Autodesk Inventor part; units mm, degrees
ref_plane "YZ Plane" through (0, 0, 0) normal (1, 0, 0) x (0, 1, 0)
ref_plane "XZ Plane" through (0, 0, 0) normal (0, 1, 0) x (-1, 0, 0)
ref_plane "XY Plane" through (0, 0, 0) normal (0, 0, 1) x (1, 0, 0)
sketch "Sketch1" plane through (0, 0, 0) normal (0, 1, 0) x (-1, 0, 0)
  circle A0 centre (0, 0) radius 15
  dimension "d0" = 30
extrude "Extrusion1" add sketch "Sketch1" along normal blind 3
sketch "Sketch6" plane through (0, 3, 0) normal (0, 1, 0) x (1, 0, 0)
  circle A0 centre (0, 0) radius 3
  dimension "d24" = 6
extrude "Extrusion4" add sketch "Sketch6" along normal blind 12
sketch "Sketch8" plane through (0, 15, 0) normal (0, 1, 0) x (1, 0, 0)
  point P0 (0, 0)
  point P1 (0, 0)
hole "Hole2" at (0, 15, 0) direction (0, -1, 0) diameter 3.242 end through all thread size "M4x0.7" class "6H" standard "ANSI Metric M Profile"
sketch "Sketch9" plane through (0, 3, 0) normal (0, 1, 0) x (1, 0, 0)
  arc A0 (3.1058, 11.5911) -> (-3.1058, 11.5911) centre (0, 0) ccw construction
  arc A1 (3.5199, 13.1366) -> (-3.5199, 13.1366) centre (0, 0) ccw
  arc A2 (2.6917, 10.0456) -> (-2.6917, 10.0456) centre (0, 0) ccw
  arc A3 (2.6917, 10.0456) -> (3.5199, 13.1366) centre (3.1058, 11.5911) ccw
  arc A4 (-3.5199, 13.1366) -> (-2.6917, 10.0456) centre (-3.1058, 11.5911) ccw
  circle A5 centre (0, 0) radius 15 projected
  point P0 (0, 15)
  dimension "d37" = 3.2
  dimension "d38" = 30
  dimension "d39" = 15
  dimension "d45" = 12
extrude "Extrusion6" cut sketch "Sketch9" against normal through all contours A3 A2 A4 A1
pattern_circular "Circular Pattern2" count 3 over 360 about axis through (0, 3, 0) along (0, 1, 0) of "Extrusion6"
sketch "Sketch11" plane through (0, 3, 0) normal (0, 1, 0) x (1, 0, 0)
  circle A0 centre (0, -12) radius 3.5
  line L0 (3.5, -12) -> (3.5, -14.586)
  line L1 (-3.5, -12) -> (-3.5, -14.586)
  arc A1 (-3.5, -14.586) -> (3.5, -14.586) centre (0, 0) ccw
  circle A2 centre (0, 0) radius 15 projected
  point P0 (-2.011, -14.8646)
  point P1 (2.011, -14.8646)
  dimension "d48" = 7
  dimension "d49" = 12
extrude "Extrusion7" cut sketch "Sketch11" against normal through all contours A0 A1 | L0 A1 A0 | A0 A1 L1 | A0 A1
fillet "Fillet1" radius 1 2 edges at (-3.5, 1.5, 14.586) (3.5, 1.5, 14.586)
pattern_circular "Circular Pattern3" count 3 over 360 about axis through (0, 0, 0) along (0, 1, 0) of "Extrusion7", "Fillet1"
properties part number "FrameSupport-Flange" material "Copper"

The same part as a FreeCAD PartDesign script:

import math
import FreeCAD as App
import Part
import Sketcher
from FreeCAD import Vector
Q = App.Units.Quantity


def edges_at(feature, points):
    """Names of the edges that pass closest to the given points."""
    edges = feature.Shape.Edges
    near = lambda p: min(range(len(edges)), key=lambda i: edges[i].distToShape(Part.Vertex(*p))[0])
    return sorted({f"Edge{near(p) + 1}" for p in points})

doc = App.newDocument("Part")
body = doc.addObject("PartDesign::Body", "Body")

# Sketch on XZ plane
sketch1 = body.newObject("Sketcher::SketchObject", "Sketch")
sketch1.AttachmentSupport = (doc.getObject("XZ_Plane"), [""])
sketch1.MapMode = "FlatFace"
sketch1.addGeometry(Part.Circle(Vector(0, 0, 0), Vector(0, 0, 1), 15), False)
sketch1.addConstraint(Sketcher.Constraint("Coincident", 0, 3, -1, 1))
sketch1.addConstraint(Sketcher.Constraint("Diameter", 0, Q("30 mm")))
pad1 = body.newObject("PartDesign::Pad", "Pad")
pad1.Profile = sketch1
pad1.Length = 3
pad1.Reversed = True

# Sketch on XZ plane
sketch2 = body.newObject("Sketcher::SketchObject", "Sketch001")
sketch2.AttachmentSupport = (doc.getObject("XZ_Plane"), [""])
sketch2.MapMode = "FlatFace"
sketch2.AttachmentOffset = App.Placement(Vector(0, 0, -3), App.Rotation())
sketch2.addGeometry(Part.Circle(Vector(0, 0, 0), Vector(0, 0, 1), 3), False)
sketch2.addConstraint(Sketcher.Constraint("Coincident", 0, 3, -1, 1))
sketch2.addConstraint(Sketcher.Constraint("Diameter", 0, Q("6 mm")))
pad2 = body.newObject("PartDesign::Pad", "Pad001")
pad2.Profile = sketch2
pad2.Length = 12
pad2.Reversed = True

# Sketch on XZ plane
sketch3 = body.newObject("Sketcher::SketchObject", "Sketch002")
sketch3.AttachmentSupport = (doc.getObject("XZ_Plane"), [""])
sketch3.MapMode = "FlatFace"
sketch3.AttachmentOffset = App.Placement(Vector(0, 0, -15), App.Rotation())
sketch3.addGeometry(Part.Circle(Vector(0, 0, 0), Vector(0, 0, 1), 1.6), False)
sketch3.addConstraint(Sketcher.Constraint("Coincident", 0, 3, -1, 1))
sketch3.addConstraint(Sketcher.Constraint("Diameter", 0, Q("3.242 mm")))
doc.recompute()
hole = body.newObject("PartDesign::Hole", "Hole")
hole.Profile = sketch3
hole.ThreadType = "None"
hole.Diameter = 3.242
hole.DepthType = "ThroughAll"
hole.Reversed = True

# Sketch on XZ plane
sketch4 = body.newObject("Sketcher::SketchObject", "Sketch003")
sketch4.AttachmentSupport = (doc.getObject("XZ_Plane"), [""])
sketch4.MapMode = "FlatFace"
sketch4.AttachmentOffset = App.Placement(Vector(0, 0, -3), App.Rotation())
sketch4.addGeometry(Part.ArcOfCircle(Part.Circle(Vector(3.1, -11.6, 0), Vector(0, 0, 1), 1.6), math.radians(-75), math.radians(105)), False)
sketch4.addGeometry(Part.ArcOfCircle(Part.Circle(Vector(0, 0, 0), Vector(0, 0, 1), 13.6), math.radians(-105), math.radians(-75)), False)
sketch4.addGeometry(Part.ArcOfCircle(Part.Circle(Vector(-3.1, -11.6, 0), Vector(0, 0, 1), 1.6), math.radians(75), math.radians(255)), False)
sketch4.addGeometry(Part.ArcOfCircle(Part.Circle(Vector(0, 0, 0), Vector(0, 0, 1), 10.4), math.radians(-105), math.radians(-75)), False)
sketch4.addConstraint(Sketcher.Constraint("Tangent", 0, 1, 1, 2))
sketch4.addConstraint(Sketcher.Constraint("Tangent", 1, 1, 2, 2))
sketch4.addConstraint(Sketcher.Constraint("Tangent", 2, 1, 3, 1))
sketch4.addConstraint(Sketcher.Constraint("Tangent", 3, 2, 0, 2))
sketch4.addConstraint(Sketcher.Constraint("Coincident", 1, 3, -1, 1))
sketch4.addConstraint(Sketcher.Constraint("Coincident", 3, 3, -1, 1))
sketch4.addConstraint(Sketcher.Constraint("Horizontal", 0, 3, 2, 3))
sketch4.addConstraint(Sketcher.Constraint("Radius", 0, Q("1.6 mm")))
sketch4.addConstraint(Sketcher.Constraint("Radius", 1, Q("13.6 mm")))
sketch4.addConstraint(Sketcher.Constraint("DistanceX", -1, 1, 0, 1, Q("3.52 mm")))
pocket1 = body.newObject("PartDesign::Pocket", "Pocket")
pocket1.Profile = sketch4
pocket1.Type = "ThroughAll"
pocket1.Reversed = True
doc.recompute()

polarpattern = body.newObject("PartDesign::PolarPattern", "PolarPattern")
polarpattern.Originals = [pocket1]
polarpattern.Axis = (doc.getObject("Y_Axis"), [""])
polarpattern.Angle = 360
polarpattern.Occurrences = 3
body.Tip = polarpattern

# Sketch on XZ plane
sketch5 = body.newObject("Sketcher::SketchObject", "Sketch004")
sketch5.AttachmentSupport = (doc.getObject("XZ_Plane"), [""])
sketch5.MapMode = "FlatFace"
sketch5.AttachmentOffset = App.Placement(Vector(0, 0, -3), App.Rotation())
sketch5.addGeometry(Part.ArcOfCircle(Part.Circle(Vector(0, 12, 0), Vector(0, 0, 1), 3.5), math.radians(180), math.radians(360)), False)
sketch5.addGeometry(Part.LineSegment(Vector(-3.5, 12, 0), Vector(-3.5, 14.6, 0)), False)
sketch5.addGeometry(Part.ArcOfCircle(Part.Circle(Vector(0, 0, 0), Vector(0, 0, 1), 15), math.radians(97.7), math.radians(103.49)), False)
sketch5.addGeometry(Part.ArcOfCircle(Part.Circle(Vector(0, 12, 0), Vector(0, 0, 1), 3.5), math.radians(55), math.radians(125)), False)
sketch5.addGeometry(Part.ArcOfCircle(Part.Circle(Vector(0, 0, 0), Vector(0, 0, 1), 15), math.radians(76.51), math.radians(82.3)), False)
sketch5.addGeometry(Part.LineSegment(Vector(3.5, 14.6, 0), Vector(3.5, 12, 0)), False)
sketch5.addConstraint(Sketcher.Constraint("Tangent", 0, 1, 1, 1))
sketch5.addConstraint(Sketcher.Constraint("Coincident", 1, 2, 2, 2))
sketch5.addConstraint(Sketcher.Constraint("Coincident", 2, 1, 3, 2))
sketch5.addConstraint(Sketcher.Constraint("Coincident", 3, 1, 4, 2))
sketch5.addConstraint(Sketcher.Constraint("Coincident", 4, 1, 5, 1))
sketch5.addConstraint(Sketcher.Constraint("Tangent", 5, 2, 0, 2))
sketch5.addConstraint(Sketcher.Constraint("Vertical", 1))
sketch5.addConstraint(Sketcher.Constraint("Vertical", 5))
sketch5.addConstraint(Sketcher.Constraint("Coincident", 2, 3, -1, 1))
sketch5.addConstraint(Sketcher.Constraint("Coincident", 4, 3, -1, 1))
sketch5.addConstraint(Sketcher.Constraint("Coincident", 3, 3, 0, 3))
sketch5.addConstraint(Sketcher.Constraint("Equal", 0, 3))
sketch5.addConstraint(Sketcher.Constraint("Equal", 2, 4))
sketch5.addConstraint(Sketcher.Constraint("PointOnObject", 0, 3, -2))
sketch5.addConstraint(Sketcher.Constraint("Radius", 0, Q("3.5 mm")))
sketch5.addConstraint(Sketcher.Constraint("DistanceY", -1, 1, 0, 3, Q("12 mm")))
sketch5.addConstraint(Sketcher.Constraint("Radius", 2, Q("15 mm")))
pocket2 = body.newObject("PartDesign::Pocket", "Pocket001")
pocket2.Profile = sketch5
pocket2.Type = "ThroughAll"
pocket2.Reversed = True
doc.recompute()

fillet = body.newObject("PartDesign::Fillet", "Fillet")
fillet.Base = (pocket2, edges_at(pocket2, [(-3.5, 1.5, 14.586), (3.5, 1.5, 14.586)]))
fillet.Radius = 1
doc.recompute()

polarpattern2 = body.newObject("PartDesign::PolarPattern", "PolarPattern001")
polarpattern2.Originals = [pocket2, fillet]
polarpattern2.Axis = (doc.getObject("Y_Axis"), [""])
polarpattern2.Angle = 360
polarpattern2.Occurrences = 3
body.Tip = polarpattern2

doc.recompute()
